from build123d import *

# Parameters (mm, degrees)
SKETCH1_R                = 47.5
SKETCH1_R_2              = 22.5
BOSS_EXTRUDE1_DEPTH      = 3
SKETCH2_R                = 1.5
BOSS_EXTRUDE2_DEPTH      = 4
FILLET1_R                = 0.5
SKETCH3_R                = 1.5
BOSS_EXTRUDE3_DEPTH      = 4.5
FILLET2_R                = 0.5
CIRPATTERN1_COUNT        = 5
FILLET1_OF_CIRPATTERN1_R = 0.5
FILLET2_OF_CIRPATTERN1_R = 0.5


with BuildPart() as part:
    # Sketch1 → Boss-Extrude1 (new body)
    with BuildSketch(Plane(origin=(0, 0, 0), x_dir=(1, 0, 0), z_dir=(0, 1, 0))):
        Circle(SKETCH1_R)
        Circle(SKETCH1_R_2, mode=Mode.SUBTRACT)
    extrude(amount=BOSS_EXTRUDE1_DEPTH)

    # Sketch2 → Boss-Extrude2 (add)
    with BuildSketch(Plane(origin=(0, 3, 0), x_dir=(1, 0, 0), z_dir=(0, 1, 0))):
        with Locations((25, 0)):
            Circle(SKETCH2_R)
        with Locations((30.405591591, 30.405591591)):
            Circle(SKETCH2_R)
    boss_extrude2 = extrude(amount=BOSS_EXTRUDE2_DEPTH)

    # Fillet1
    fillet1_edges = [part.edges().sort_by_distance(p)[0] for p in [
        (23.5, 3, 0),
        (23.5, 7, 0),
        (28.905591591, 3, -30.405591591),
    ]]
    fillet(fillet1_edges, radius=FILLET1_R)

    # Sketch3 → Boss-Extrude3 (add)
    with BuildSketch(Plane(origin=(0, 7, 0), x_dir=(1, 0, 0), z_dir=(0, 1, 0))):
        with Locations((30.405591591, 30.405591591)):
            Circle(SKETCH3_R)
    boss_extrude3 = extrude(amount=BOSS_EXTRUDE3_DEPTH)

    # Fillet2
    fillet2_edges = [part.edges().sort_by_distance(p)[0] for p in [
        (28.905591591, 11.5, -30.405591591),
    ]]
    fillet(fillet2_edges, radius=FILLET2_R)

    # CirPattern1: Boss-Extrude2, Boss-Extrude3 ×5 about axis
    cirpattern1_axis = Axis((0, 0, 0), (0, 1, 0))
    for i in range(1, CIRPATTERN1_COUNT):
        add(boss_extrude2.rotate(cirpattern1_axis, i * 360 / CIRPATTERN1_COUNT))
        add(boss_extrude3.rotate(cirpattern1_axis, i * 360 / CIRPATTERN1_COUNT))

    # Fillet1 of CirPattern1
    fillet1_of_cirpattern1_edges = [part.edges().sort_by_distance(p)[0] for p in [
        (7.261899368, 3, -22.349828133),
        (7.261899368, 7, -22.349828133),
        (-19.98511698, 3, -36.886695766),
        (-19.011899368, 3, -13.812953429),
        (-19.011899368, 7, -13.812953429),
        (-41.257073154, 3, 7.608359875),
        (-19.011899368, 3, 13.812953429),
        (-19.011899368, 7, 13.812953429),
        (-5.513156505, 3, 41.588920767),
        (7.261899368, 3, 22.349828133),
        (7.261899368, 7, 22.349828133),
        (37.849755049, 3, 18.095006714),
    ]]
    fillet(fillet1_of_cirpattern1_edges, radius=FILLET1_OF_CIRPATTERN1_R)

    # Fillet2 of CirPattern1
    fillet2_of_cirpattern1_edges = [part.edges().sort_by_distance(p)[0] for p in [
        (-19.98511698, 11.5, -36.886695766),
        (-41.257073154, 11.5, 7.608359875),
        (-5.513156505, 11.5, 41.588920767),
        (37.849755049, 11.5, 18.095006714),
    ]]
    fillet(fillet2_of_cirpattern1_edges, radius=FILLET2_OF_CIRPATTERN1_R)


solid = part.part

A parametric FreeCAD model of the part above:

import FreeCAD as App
import Part
import Sketcher
from FreeCAD import Vector


def edges_at(feature, points):
    """Names of the edges that pass closest to the given points."""
    edges = feature.Shape.Edges
    near = lambda p: min(range(len(edges)), key=lambda i: edges[i].distToShape(Part.Vertex(*p))[0])
    return sorted({f"Edge{near(p) + 1}" for p in points})

doc = App.newDocument("Part")
body = doc.addObject("PartDesign::Body", "Body")

# Sketch on XZ plane
sketch1 = body.newObject("Sketcher::SketchObject", "Sketch")
sketch1.AttachmentSupport = (doc.getObject("XZ_Plane"), [""])
sketch1.MapMode = "FlatFace"
sketch1.addGeometry([
    Part.Circle(Vector(0, 0, 0), Vector(0, 0, 1), 48),
    Part.Circle(Vector(0, 0, 0), Vector(0, 0, 1), 22),
], False)
sketch1.addConstraint([
    Sketcher.Constraint("Coincident", 0, 3, -1, 1),
    Sketcher.Constraint("Coincident", 1, 3, -1, 1),
    Sketcher.Constraint("Diameter", 0, 95.0),
    Sketcher.Constraint("Diameter", 1, 45.0),
])
pad1 = body.newObject("PartDesign::Pad", "Pad")
pad1.Profile = sketch1
pad1.Length = 3
pad1.Reversed = True

# Sketch on XZ plane
sketch2 = body.newObject("Sketcher::SketchObject", "Sketch001")
sketch2.AttachmentSupport = (doc.getObject("XZ_Plane"), [""])
sketch2.MapMode = "FlatFace"
sketch2.AttachmentOffset = App.Placement(Vector(0, 0, -3), App.Rotation())
sketch2.addGeometry([
    Part.Circle(Vector(25, 0, 0), Vector(0, 0, 1), 1.5),
    Part.Circle(Vector(30.4, -30.4, 0), Vector(0, 0, 1), 1.5),
], False)
sketch2.addConstraint([
    Sketcher.Constraint("Equal", 0, 1),
    Sketcher.Constraint("PointOnObject", 0, 3, -1),
    Sketcher.Constraint("Diameter", 0, 3.0),
    Sketcher.Constraint("DistanceX", -1, 1, 0, 3, 25.0),
    Sketcher.Constraint("DistanceX", -1, 1, 1, 3, 30.405592),
    Sketcher.Constraint("DistanceY", 1, 3, -1, 1, 30.405592),
])
pad2 = body.newObject("PartDesign::Pad", "Pad001")
pad2.Profile = sketch2
pad2.Length = 4
pad2.Reversed = True
doc.recompute()

fillet = body.newObject("PartDesign::Fillet", "Fillet")
fillet.Base = (pad2, edges_at(pad2, [(23.5, 3, 0), (23.5, 7, 0), (28.906, 3, -30.406)]))
fillet.Radius = 0.5

# Sketch on XZ plane
sketch3 = body.newObject("Sketcher::SketchObject", "Sketch002")
sketch3.AttachmentSupport = (doc.getObject("XZ_Plane"), [""])
sketch3.MapMode = "FlatFace"
sketch3.AttachmentOffset = App.Placement(Vector(0, 0, -7), App.Rotation())
sketch3.addGeometry(Part.Circle(Vector(30.4, -30.4, 0), Vector(0, 0, 1), 1.5), False)
sketch3.addConstraint([
    Sketcher.Constraint("Diameter", 0, 3.0),
    Sketcher.Constraint("DistanceX", -1, 1, 0, 3, 30.405592),
    Sketcher.Constraint("DistanceY", 0, 3, -1, 1, 30.405592),
])
pad3 = body.newObject("PartDesign::Pad", "Pad002")
pad3.Profile = sketch3
pad3.Length = 4.5
pad3.Reversed = True
doc.recompute()

fillet2 = body.newObject("PartDesign::Fillet", "Fillet001")
fillet2.Base = (pad3, edges_at(pad3, [(28.906, 11.5, -30.406)]))
fillet2.Radius = 0.5
doc.recompute()

polarpattern = body.newObject("PartDesign::PolarPattern", "PolarPattern")
polarpattern.Originals = [pad2, pad3]
polarpattern.Axis = (doc.getObject("Y_Axis"), [""])
polarpattern.Angle = 360
polarpattern.Occurrences = 5
body.Tip = polarpattern
doc.recompute()

fillet3 = body.newObject("PartDesign::Fillet", "Fillet002")
fillet3.Base = (polarpattern, edges_at(polarpattern, [
    (7.262, 3, -22.35),
    (7.262, 7, -22.35),
    (-19.985, 3, -36.887),
    (-19.012, 3, -13.813),
    (-19.012, 7, -13.813),
    (-41.257, 3, 7.608),
    (-19.012, 3, 13.813),
    (-19.012, 7, 13.813),
    (-5.513, 3, 41.589),
    (7.262, 3, 22.35),
    (7.262, 7, 22.35),
    (37.85, 3, 18.095),
]))
fillet3.Radius = 0.5
doc.recompute()

fillet4 = body.newObject("PartDesign::Fillet", "Fillet003")
fillet4.Base = (fillet3, edges_at(fillet3, [
    (-19.985, 11.5, -36.887),
    (-41.257, 11.5, 7.608),
    (-5.513, 11.5, 41.589),
    (37.85, 11.5, 18.095),
]))
fillet4.Radius = 0.5

doc.recompute()
